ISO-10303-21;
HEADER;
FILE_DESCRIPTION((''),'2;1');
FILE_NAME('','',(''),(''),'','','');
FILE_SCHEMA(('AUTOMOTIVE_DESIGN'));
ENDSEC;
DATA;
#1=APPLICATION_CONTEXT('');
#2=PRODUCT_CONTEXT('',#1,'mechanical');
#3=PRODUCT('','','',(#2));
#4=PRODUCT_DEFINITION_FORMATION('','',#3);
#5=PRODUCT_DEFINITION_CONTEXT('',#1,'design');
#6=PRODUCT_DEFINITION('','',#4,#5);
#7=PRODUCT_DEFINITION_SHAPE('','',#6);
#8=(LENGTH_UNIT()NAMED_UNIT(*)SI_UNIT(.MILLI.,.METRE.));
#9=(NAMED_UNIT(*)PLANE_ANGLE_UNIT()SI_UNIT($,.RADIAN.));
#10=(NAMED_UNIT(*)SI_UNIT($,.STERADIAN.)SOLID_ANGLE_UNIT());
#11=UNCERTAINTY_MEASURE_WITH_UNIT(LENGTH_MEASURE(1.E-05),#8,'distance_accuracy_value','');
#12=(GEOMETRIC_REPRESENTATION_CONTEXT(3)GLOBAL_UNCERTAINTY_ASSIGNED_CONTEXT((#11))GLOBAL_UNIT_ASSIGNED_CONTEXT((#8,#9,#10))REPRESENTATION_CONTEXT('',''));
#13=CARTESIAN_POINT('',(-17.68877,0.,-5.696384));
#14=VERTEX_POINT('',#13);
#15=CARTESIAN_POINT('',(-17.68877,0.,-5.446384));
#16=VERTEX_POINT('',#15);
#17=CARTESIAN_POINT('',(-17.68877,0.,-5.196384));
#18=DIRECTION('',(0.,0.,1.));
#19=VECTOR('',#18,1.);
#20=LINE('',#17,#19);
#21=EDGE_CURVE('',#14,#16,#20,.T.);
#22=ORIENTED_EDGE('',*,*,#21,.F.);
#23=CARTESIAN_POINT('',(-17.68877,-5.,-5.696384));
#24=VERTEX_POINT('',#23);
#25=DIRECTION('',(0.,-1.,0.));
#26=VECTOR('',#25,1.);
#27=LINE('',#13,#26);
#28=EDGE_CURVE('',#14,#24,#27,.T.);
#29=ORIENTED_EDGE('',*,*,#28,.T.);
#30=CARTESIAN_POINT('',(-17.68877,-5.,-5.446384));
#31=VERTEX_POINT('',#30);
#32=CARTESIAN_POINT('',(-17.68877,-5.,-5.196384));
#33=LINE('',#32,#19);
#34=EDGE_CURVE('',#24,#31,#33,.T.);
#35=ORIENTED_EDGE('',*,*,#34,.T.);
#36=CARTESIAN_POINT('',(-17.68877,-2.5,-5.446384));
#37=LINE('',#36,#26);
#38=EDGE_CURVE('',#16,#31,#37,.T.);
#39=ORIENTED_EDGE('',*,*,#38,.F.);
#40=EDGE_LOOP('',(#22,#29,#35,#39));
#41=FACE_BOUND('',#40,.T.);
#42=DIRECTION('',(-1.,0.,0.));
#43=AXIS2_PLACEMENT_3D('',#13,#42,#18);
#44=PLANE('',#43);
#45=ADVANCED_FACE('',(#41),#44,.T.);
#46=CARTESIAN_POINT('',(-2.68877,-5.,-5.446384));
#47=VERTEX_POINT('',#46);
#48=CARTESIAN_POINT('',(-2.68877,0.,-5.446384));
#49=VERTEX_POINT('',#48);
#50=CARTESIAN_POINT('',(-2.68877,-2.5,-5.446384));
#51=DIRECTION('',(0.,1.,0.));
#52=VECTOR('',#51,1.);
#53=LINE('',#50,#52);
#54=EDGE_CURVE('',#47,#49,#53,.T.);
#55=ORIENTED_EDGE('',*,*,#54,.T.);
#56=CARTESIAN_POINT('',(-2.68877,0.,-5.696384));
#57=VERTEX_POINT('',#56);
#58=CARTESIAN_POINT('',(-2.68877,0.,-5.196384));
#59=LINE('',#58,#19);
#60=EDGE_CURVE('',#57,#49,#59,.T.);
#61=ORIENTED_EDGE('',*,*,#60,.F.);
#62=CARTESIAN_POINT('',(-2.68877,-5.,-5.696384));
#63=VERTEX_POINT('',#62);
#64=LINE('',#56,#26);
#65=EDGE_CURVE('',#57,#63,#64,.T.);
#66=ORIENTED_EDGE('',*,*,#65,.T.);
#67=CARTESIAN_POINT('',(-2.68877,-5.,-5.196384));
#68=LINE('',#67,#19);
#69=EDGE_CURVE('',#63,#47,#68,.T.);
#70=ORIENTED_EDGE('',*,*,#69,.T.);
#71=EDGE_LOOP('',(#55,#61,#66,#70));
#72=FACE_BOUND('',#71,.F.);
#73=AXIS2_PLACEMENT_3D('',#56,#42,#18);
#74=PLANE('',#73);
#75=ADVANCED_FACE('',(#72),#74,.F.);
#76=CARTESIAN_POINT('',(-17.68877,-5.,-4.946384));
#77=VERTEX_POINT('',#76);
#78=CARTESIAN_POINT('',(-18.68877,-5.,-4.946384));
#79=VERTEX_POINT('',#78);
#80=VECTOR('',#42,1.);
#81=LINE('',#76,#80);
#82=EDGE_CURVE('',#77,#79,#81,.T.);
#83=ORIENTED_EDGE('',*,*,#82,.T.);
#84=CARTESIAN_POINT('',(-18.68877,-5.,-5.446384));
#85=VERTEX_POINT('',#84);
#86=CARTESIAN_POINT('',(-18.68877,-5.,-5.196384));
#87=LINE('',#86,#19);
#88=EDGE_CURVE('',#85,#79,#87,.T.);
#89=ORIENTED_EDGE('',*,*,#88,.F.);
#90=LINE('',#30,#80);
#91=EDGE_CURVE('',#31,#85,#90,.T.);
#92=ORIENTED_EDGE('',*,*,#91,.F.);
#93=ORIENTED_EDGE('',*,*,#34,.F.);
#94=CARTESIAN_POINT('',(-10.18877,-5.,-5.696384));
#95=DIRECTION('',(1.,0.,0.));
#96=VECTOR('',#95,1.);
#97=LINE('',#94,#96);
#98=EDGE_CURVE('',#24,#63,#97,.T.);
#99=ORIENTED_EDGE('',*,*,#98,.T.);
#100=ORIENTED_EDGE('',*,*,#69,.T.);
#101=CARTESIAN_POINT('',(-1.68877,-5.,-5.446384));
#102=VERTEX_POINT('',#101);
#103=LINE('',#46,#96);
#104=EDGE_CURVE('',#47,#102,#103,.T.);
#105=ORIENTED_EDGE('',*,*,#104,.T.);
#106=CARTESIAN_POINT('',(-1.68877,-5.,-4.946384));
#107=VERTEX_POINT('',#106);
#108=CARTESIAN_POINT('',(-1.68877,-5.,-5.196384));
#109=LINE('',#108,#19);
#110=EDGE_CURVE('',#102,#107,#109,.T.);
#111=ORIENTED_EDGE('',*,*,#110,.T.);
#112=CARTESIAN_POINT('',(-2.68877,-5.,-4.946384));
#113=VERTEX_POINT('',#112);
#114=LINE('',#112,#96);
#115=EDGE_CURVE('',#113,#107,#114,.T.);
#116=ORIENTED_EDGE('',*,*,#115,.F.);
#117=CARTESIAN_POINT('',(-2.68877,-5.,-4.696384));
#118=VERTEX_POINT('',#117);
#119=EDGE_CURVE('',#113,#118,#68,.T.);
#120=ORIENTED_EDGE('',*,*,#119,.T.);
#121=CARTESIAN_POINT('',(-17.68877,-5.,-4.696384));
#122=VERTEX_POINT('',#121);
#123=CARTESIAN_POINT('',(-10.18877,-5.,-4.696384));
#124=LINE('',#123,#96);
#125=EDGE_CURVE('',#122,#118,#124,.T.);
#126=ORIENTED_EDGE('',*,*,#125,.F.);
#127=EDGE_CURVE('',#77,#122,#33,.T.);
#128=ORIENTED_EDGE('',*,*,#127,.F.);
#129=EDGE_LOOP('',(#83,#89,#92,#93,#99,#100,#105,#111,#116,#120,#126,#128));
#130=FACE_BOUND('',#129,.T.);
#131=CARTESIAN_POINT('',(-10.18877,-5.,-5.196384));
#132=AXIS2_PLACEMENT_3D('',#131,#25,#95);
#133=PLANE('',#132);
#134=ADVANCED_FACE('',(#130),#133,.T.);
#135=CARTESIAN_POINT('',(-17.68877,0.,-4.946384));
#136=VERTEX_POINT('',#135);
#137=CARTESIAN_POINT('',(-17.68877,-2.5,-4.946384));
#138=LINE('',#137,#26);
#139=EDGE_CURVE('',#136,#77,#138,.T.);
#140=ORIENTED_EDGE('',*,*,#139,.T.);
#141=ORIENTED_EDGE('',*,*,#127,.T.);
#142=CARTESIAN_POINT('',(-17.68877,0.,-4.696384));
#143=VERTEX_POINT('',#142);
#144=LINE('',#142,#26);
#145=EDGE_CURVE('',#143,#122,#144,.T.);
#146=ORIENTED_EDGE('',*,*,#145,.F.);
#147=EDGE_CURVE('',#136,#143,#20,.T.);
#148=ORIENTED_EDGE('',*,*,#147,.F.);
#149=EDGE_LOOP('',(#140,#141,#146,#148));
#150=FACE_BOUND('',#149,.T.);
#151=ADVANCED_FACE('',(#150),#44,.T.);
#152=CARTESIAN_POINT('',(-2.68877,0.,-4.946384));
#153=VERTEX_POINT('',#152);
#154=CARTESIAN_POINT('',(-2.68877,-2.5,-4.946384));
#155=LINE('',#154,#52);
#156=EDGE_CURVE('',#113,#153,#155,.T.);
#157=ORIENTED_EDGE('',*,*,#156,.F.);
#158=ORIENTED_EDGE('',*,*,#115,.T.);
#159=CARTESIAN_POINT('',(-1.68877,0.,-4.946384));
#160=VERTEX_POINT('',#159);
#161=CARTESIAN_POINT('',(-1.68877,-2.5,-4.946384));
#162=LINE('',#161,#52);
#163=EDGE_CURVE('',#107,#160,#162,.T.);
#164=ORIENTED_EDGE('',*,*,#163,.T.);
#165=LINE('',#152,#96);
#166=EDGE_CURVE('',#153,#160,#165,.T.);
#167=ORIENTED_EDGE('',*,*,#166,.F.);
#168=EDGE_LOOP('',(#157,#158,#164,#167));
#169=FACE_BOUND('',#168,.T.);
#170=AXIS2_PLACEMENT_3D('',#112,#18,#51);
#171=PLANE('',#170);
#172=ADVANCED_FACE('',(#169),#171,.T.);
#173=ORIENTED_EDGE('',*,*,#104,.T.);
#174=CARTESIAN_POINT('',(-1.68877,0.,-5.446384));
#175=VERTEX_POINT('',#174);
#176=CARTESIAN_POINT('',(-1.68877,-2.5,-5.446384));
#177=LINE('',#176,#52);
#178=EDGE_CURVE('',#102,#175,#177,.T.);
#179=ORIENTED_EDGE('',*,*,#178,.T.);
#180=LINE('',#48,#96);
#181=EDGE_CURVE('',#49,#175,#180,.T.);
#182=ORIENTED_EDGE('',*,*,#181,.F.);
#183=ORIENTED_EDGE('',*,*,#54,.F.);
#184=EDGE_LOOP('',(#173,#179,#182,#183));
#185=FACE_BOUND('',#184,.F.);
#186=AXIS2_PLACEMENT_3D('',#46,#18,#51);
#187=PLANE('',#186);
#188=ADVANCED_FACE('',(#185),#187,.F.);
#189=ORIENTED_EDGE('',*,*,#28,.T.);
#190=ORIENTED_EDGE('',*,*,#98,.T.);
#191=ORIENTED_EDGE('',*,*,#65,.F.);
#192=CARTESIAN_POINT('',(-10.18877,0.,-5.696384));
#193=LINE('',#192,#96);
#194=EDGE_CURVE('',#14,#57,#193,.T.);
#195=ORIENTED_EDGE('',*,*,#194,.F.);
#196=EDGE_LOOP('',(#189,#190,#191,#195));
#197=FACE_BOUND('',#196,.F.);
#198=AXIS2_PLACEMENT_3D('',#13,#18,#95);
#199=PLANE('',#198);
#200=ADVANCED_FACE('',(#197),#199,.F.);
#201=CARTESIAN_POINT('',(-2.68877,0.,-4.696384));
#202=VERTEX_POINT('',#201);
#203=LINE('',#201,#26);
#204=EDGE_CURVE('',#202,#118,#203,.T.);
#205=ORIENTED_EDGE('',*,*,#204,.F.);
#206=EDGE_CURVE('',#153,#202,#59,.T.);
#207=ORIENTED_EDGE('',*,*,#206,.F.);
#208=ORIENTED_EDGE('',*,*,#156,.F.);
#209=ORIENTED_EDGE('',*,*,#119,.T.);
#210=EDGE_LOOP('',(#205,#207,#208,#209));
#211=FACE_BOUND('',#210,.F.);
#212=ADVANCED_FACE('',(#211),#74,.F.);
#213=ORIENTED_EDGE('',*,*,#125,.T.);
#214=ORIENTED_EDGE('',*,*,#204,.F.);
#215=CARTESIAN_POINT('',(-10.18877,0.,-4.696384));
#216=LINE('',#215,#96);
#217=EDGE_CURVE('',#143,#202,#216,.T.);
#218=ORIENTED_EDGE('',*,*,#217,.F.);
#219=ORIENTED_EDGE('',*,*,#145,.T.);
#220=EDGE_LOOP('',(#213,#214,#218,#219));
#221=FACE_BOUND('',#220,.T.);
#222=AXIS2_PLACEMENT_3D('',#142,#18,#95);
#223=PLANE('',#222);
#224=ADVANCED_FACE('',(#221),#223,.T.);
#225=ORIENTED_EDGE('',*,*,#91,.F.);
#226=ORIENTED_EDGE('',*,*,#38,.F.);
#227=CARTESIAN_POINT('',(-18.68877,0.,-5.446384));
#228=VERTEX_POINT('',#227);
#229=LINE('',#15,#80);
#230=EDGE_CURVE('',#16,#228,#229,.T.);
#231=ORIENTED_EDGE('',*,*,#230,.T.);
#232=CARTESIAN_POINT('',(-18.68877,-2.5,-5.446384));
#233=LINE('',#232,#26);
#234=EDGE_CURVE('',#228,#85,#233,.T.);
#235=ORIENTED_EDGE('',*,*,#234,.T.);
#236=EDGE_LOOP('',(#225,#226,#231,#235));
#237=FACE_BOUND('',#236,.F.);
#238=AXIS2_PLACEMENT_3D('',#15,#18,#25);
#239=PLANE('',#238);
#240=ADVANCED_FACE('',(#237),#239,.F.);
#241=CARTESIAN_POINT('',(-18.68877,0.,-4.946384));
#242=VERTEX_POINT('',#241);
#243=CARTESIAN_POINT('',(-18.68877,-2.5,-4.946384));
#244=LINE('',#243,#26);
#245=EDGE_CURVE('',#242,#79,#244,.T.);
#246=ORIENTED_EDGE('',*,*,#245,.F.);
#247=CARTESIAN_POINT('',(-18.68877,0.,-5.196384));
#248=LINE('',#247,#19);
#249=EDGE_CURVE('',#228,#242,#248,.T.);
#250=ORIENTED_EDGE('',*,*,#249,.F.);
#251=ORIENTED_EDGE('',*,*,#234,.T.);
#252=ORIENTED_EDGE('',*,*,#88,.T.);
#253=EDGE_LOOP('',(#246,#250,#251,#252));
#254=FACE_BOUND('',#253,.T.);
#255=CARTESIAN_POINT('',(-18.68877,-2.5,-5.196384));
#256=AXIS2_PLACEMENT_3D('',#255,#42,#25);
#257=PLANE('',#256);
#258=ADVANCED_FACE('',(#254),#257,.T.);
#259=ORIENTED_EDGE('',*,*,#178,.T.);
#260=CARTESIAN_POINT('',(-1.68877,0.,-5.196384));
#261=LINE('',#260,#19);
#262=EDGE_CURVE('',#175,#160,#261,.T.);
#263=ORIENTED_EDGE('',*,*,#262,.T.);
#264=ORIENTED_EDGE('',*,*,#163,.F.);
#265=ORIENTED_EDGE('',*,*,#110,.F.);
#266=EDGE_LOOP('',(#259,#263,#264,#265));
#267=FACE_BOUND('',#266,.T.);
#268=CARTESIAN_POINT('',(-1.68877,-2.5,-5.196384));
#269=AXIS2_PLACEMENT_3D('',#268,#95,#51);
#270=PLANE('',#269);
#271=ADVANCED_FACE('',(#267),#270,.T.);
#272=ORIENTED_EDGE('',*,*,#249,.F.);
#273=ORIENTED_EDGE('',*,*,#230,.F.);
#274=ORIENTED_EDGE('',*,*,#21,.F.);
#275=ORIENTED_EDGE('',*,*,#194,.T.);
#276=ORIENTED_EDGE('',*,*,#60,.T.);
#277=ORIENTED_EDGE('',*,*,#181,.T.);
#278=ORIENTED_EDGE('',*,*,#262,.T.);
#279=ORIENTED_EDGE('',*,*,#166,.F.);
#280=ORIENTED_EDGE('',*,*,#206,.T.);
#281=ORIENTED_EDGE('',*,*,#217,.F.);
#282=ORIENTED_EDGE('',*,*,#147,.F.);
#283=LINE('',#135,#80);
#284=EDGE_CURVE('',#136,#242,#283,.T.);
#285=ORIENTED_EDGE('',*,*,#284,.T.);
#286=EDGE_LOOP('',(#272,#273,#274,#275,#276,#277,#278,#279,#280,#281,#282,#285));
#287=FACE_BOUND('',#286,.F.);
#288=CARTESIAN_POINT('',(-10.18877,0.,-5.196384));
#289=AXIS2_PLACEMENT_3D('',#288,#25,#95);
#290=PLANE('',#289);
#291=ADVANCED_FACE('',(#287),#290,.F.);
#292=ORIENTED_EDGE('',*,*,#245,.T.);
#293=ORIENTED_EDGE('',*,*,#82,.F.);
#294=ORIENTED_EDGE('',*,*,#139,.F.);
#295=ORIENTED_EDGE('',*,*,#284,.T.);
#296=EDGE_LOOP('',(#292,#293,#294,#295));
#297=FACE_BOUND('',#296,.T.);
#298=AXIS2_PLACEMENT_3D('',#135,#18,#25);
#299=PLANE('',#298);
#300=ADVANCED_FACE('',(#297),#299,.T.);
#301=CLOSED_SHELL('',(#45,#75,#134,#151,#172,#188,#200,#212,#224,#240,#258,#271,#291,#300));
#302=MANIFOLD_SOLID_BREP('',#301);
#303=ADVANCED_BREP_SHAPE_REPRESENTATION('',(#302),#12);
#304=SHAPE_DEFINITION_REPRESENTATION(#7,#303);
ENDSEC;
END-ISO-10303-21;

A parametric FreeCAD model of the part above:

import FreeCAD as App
import Part
import Sketcher
from FreeCAD import Vector


def add_polygon(sketch, points):
    """Adds a closed chain of lines whose ends are joined by coincident constraints."""
    first, n = sketch.GeometryCount, len(points)
    for a, b in zip(points, points[1:] + points[:1]):
        sketch.addGeometry(Part.LineSegment(App.Vector(*a, 0), App.Vector(*b, 0)), False)
    for i in range(n):
        sketch.addConstraint(Sketcher.Constraint("Coincident", first + i, 2, first + (i + 1) % n, 1))

doc = App.newDocument("Part")
body = doc.addObject("PartDesign::Body", "Body")

# Sketch on XZ plane
sketch1 = body.newObject("Sketcher::SketchObject", "Sketch")
sketch1.AttachmentSupport = (doc.getObject("XZ_Plane"), [""])
sketch1.MapMode = "FlatFace"
add_polygon(sketch1, [(-17.7, -4.7), (-17.7, -5.7), (-2.7, -5.7), (-2.7, -4.7)])  # lines 0-3
sketch1.addConstraint([
    Sketcher.Constraint("Vertical", 0),
    Sketcher.Constraint("Horizontal", 1),
    Sketcher.Constraint("Vertical", 2),
    Sketcher.Constraint("Horizontal", 3),
    Sketcher.Constraint("DistanceX", 1, 1, 1, 2, 15.0),
    Sketcher.Constraint("DistanceY", 0, 2, 0, 1, 1.0),
    Sketcher.Constraint("DistanceX", 0, 2, -1, 1, 17.68877),
    Sketcher.Constraint("DistanceY", 0, 2, -1, 1, 5.696384),
])
pad1 = body.newObject("PartDesign::Pad", "Pad")
pad1.Profile = sketch1
pad1.Length = 5

# Sketch on YZ plane
sketch2 = body.newObject("Sketcher::SketchObject", "Sketch001")
sketch2.AttachmentSupport = (doc.getObject("YZ_Plane"), [""])
sketch2.MapMode = "FlatFace"
sketch2.AttachmentOffset = App.Placement(Vector(0, 0, -17.68877), App.Rotation())
add_polygon(sketch2, [(0, -4.9), (0, -5.4), (-5, -5.4), (-5, -4.9)])  # lines 0-3
sketch2.addConstraint([
    Sketcher.Constraint("Vertical", 0),
    Sketcher.Constraint("Horizontal", 1),
    Sketcher.Constraint("Vertical", 2),
    Sketcher.Constraint("Horizontal", 3),
    Sketcher.Constraint("PointOnObject", 0, 2, -2),
    Sketcher.Constraint("DistanceX", 1, 2, 1, 1, 5.0),
    Sketcher.Constraint("DistanceY", 0, 2, 0, 1, 0.5),
    Sketcher.Constraint("DistanceY", 0, 2, -1, 1, 5.446384),
])
pad2 = body.newObject("PartDesign::Pad", "Pad001")
pad2.Profile = sketch2
pad2.Length = 1
pad2.Reversed = True

# Sketch on YZ plane
sketch3 = body.newObject("Sketcher::SketchObject", "Sketch002")
sketch3.AttachmentSupport = (doc.getObject("YZ_Plane"), [""])
sketch3.MapMode = "FlatFace"
sketch3.AttachmentOffset = App.Placement(Vector(0, 0, -2.68877), App.Rotation())
add_polygon(sketch3, [(-5, -4.9), (-5, -5.4), (0, -5.4), (0, -4.9)])  # lines 0-3
sketch3.addConstraint([
    Sketcher.Constraint("Vertical", 0),
    Sketcher.Constraint("Horizontal", 1),
    Sketcher.Constraint("Vertical", 2),
    Sketcher.Constraint("Horizontal", 3),
    Sketcher.Constraint("PointOnObject", 1, 2, -2),
    Sketcher.Constraint("DistanceX", 1, 1, 1, 2, 5.0),
    Sketcher.Constraint("DistanceY", 0, 2, 0, 1, 0.5),
    Sketcher.Constraint("DistanceY", 0, 2, -1, 1, 5.446384),
])
pad3 = body.newObject("PartDesign::Pad", "Pad002")
pad3.Profile = sketch3
pad3.Length = 1

doc.recompute()
